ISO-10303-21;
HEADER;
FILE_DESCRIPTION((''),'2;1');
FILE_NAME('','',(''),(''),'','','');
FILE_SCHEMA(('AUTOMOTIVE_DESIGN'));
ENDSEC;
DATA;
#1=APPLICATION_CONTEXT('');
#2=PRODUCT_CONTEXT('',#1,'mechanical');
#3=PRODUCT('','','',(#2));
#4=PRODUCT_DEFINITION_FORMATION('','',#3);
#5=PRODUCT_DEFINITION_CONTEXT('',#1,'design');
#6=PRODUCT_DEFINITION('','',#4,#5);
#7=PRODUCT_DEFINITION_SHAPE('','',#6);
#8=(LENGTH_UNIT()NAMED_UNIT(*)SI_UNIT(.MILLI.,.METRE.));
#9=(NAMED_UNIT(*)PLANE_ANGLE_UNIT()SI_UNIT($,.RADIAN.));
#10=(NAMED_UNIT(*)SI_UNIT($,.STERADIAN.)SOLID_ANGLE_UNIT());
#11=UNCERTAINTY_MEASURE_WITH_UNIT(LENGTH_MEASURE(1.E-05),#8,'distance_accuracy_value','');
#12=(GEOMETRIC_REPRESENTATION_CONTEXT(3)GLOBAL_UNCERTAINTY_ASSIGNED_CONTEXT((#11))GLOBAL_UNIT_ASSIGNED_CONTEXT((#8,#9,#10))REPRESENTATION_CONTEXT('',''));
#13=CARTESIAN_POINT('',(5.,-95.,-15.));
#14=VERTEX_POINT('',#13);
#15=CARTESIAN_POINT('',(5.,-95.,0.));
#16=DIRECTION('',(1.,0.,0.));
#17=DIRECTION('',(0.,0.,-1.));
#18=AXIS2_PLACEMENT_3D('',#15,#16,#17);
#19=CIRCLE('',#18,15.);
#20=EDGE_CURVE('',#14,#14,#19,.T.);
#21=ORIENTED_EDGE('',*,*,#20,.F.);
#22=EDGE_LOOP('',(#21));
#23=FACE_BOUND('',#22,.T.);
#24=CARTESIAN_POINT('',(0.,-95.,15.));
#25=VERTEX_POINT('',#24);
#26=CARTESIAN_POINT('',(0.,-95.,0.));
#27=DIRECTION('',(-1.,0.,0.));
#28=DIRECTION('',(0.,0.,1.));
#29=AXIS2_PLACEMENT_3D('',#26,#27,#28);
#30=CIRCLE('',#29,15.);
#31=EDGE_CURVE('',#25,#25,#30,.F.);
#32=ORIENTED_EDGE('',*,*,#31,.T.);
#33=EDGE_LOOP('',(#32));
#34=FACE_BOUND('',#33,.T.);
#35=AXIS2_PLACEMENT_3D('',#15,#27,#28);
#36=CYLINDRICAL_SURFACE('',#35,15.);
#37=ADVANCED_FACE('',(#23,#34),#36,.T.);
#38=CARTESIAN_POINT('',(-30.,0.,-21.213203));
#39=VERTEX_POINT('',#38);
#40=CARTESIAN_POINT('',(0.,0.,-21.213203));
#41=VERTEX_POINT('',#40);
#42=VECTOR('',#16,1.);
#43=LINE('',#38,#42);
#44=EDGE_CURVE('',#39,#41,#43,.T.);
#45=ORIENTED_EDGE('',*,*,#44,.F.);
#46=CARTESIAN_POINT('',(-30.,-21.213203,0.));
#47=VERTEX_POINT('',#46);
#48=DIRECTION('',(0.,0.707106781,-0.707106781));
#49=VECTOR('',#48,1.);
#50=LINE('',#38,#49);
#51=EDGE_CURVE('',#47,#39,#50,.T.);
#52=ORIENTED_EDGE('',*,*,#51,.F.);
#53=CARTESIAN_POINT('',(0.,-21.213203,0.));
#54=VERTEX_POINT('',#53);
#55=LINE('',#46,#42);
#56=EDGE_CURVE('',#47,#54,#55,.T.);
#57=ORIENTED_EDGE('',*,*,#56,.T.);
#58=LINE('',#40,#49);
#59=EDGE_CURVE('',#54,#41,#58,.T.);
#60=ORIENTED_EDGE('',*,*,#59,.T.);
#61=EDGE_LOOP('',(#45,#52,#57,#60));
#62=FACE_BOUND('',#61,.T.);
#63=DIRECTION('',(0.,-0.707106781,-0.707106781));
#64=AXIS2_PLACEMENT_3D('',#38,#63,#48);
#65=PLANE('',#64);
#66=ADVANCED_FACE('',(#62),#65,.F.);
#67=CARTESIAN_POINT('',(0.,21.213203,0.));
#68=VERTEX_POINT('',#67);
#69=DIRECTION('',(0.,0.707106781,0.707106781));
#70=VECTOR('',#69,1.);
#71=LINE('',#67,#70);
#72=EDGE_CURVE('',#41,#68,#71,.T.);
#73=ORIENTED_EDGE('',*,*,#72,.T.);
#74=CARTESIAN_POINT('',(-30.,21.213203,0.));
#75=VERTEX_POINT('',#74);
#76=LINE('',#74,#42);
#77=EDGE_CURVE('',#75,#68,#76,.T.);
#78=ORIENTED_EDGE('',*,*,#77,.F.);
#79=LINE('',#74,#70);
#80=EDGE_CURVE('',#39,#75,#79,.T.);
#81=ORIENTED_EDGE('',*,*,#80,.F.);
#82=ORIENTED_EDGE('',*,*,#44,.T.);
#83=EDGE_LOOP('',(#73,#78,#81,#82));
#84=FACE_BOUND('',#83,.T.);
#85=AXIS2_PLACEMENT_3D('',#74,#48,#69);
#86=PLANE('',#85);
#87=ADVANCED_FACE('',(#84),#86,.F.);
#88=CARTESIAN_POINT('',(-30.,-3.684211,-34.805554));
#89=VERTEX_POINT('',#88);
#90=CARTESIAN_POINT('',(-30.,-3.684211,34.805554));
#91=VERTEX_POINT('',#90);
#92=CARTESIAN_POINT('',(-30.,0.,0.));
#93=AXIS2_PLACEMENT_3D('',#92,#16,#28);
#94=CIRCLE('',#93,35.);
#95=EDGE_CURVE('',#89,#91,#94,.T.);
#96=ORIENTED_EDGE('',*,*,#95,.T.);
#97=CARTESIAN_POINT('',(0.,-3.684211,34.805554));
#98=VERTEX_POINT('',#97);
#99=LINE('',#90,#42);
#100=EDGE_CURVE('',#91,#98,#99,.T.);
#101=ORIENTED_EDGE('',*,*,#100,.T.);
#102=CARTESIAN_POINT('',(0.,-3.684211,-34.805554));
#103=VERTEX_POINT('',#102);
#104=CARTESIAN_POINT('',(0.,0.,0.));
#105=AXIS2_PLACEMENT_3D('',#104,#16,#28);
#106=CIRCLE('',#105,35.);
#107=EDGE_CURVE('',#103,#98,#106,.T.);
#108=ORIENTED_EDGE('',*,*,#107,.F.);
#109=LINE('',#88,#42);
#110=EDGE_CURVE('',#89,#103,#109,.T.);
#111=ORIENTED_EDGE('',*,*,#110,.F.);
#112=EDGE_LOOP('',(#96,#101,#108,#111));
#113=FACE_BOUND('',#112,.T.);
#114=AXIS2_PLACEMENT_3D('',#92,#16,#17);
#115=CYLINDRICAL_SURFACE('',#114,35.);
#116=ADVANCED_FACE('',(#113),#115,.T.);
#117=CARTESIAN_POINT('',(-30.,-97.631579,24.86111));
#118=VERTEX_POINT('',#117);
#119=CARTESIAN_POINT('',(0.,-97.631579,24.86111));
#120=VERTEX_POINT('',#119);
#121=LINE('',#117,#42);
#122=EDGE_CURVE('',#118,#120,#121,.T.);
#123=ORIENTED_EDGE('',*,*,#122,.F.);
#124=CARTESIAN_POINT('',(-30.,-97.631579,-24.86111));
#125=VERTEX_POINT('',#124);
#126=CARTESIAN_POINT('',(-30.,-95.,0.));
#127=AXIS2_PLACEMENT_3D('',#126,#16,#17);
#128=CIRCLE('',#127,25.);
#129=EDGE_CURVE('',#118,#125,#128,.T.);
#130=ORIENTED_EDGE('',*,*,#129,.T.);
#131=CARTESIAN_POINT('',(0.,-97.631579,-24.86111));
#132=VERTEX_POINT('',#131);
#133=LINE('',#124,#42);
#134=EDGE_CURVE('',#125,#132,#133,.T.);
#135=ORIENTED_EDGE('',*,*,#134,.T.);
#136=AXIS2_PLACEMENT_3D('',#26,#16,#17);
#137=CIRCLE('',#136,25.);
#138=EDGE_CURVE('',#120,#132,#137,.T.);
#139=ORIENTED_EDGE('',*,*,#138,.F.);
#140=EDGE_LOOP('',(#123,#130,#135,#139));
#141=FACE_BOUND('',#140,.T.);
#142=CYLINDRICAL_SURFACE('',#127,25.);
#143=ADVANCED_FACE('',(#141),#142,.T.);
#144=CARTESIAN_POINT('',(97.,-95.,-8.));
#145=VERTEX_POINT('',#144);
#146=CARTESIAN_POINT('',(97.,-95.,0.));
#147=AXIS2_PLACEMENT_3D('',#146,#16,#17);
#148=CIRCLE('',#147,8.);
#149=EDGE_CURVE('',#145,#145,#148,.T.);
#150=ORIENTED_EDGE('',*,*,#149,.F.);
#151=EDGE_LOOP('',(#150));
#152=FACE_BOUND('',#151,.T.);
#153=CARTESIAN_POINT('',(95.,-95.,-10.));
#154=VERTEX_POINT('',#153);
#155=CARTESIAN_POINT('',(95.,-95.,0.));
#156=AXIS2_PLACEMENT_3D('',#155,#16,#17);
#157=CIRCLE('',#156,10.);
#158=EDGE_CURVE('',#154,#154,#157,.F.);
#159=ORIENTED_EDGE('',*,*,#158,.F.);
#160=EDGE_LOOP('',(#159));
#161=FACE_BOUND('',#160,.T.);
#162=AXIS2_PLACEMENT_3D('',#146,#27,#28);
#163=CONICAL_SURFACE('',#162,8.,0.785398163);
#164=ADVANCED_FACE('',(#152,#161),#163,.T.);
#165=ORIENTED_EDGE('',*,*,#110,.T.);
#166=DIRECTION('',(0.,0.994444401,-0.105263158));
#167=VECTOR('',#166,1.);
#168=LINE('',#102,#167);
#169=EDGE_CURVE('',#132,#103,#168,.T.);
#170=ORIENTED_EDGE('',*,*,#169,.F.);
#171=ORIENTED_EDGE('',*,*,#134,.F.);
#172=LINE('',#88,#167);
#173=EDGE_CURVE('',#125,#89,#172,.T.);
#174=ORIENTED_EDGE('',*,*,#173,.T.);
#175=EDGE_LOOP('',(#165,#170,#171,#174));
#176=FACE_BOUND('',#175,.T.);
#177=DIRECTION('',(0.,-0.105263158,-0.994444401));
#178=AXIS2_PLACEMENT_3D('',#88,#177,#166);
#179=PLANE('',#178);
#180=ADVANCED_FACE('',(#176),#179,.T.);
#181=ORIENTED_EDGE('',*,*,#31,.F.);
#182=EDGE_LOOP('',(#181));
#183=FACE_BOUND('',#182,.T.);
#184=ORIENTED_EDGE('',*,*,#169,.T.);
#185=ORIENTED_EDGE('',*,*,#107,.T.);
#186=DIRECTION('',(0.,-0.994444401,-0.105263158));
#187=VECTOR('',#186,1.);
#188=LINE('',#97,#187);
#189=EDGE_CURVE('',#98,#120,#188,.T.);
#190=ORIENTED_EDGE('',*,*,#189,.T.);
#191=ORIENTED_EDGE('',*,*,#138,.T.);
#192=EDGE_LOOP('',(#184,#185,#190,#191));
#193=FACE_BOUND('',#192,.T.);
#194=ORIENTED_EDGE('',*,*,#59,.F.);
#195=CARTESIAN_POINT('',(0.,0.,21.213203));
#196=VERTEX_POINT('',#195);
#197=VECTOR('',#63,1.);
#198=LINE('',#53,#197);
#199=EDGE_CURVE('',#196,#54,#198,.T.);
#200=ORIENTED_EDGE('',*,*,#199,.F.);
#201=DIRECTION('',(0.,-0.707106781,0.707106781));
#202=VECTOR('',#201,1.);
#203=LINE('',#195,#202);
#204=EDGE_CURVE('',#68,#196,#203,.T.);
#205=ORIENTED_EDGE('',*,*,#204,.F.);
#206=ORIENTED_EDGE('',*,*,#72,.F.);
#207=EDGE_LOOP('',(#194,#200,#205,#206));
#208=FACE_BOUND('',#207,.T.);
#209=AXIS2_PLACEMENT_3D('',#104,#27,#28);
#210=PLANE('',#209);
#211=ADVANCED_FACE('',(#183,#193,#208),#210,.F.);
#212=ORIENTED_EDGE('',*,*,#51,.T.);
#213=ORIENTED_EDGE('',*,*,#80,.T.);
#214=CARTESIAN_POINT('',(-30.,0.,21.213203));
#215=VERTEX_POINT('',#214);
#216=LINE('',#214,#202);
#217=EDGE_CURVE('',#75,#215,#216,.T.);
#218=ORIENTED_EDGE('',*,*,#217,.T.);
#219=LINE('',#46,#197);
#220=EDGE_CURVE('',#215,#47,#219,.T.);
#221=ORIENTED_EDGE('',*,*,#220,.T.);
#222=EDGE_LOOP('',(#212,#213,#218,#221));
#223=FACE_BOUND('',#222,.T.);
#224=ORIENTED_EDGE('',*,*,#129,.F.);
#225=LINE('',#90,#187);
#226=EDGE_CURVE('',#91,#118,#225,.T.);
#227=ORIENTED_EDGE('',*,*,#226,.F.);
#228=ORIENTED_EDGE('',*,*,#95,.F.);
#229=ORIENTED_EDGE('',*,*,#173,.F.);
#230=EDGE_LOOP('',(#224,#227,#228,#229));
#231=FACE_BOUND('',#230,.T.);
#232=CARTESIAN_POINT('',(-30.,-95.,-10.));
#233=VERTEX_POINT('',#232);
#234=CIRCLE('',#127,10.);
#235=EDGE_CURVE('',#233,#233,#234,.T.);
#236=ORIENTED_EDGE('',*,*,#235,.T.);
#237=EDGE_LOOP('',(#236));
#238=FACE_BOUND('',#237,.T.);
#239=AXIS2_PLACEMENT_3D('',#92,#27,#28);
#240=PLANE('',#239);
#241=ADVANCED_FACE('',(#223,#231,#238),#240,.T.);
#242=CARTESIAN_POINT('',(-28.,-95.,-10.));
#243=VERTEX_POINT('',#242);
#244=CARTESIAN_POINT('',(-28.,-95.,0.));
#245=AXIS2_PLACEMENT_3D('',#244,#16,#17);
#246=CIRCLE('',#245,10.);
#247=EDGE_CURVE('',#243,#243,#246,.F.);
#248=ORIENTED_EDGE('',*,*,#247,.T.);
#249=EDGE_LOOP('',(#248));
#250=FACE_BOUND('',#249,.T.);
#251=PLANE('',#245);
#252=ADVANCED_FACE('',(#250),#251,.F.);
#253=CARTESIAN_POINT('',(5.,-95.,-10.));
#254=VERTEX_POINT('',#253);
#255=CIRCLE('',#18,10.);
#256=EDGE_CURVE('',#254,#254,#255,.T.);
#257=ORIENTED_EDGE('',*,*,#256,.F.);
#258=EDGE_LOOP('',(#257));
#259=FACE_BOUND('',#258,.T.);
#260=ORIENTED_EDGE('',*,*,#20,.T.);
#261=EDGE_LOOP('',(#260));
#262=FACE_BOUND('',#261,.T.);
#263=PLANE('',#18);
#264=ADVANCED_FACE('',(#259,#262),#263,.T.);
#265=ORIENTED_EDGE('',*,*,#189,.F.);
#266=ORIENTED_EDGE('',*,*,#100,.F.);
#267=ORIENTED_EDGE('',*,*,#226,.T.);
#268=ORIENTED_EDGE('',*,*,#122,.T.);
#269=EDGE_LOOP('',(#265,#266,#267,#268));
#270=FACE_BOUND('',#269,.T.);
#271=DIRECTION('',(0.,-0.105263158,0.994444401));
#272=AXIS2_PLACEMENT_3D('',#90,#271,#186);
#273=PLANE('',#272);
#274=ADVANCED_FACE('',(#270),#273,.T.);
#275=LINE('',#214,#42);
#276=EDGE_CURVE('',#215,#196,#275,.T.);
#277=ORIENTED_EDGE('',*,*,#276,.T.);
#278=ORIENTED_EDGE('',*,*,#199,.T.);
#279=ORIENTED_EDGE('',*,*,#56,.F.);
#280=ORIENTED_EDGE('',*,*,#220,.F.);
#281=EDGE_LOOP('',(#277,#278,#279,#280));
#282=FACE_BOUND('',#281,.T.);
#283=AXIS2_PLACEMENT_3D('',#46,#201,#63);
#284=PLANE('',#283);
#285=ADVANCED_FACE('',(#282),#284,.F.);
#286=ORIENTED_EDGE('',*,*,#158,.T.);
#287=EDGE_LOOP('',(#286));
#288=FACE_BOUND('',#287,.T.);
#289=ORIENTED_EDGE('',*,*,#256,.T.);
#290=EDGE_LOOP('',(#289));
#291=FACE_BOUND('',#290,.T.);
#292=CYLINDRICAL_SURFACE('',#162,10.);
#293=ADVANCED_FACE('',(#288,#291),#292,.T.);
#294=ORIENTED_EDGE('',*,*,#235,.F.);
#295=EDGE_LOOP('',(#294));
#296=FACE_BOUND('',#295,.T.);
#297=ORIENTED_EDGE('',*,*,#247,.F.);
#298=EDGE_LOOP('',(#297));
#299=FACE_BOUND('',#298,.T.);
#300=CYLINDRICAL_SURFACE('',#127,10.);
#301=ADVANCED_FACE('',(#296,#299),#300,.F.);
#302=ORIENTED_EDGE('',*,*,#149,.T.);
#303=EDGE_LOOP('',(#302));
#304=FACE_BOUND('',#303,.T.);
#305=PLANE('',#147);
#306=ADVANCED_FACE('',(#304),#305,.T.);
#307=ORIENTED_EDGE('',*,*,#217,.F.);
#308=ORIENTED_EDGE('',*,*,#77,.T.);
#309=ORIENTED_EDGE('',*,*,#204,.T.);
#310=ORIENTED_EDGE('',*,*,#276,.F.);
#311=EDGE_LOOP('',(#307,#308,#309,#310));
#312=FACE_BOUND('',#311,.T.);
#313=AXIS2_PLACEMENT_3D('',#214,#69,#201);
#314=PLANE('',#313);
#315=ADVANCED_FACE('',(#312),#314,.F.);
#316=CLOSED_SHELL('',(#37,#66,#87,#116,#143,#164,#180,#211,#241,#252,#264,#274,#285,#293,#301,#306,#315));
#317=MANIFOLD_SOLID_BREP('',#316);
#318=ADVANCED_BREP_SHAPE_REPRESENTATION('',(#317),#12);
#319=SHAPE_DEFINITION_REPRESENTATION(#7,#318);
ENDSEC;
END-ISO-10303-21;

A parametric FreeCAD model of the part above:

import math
import FreeCAD as App
import Part
import Sketcher
from FreeCAD import Vector
Q = App.Units.Quantity


def edges_at(feature, points):
    """Names of the edges that pass closest to the given points."""
    edges = feature.Shape.Edges
    near = lambda p: min(range(len(edges)), key=lambda i: edges[i].distToShape(Part.Vertex(*p))[0])
    return sorted({f"Edge{near(p) + 1}" for p in points})

doc = App.newDocument("Part")
body = doc.addObject("PartDesign::Body", "Body")

# Sketch on YZ plane
sketch1 = body.newObject("Sketcher::SketchObject", "Sketch")
sketch1.AttachmentSupport = (doc.getObject("YZ_Plane"), [""])
sketch1.MapMode = "FlatFace"
sketch1.addGeometry([
    Part.LineSegment(Vector(-4, 35, 0), Vector(-98, 25, 0)),  # 0
    Part.ArcOfCircle(Part.Circle(Vector(-95, 0, 0), Vector(0, 0, 1), 25), math.radians(96), math.radians(264)),  # 1
    Part.LineSegment(Vector(-98, -25, 0), Vector(-4, -35, 0)),  # 2
    Part.ArcOfCircle(Part.Circle(Vector(0, 0, 0), Vector(0, 0, 1), 35), math.radians(-96), math.radians(96)),  # 3
    Part.Circle(Vector(-95, 0, 0), Vector(0, 0, 1), 10),  # 4
    Part.LineSegment(Vector(0, 21, 0), Vector(21, 0, 0)),  # 5
    Part.LineSegment(Vector(21, 0, 0), Vector(0, -21, 0)),  # 6
    Part.LineSegment(Vector(0, -21, 0), Vector(-21, 0, 0)),  # 7
    Part.LineSegment(Vector(-21, 0, 0), Vector(0, 21, 0)),  # 8
], False)
sketch1.addConstraint([
    Sketcher.Constraint("Tangent", 0, 2, 1, 1),
    Sketcher.Constraint("Tangent", 1, 2, 2, 1),
    Sketcher.Constraint("Tangent", 2, 2, 3, 1),
    Sketcher.Constraint("Tangent", 3, 2, 0, 1),
    Sketcher.Constraint("Coincident", 5, 2, 6, 1),
    Sketcher.Constraint("Coincident", 6, 2, 7, 1),
    Sketcher.Constraint("Coincident", 7, 2, 8, 1),
    Sketcher.Constraint("Coincident", 8, 2, 5, 1),
    Sketcher.Constraint("Coincident", 3, 3, -1, 1),
    Sketcher.Constraint("Coincident", 4, 3, 1, 3),
    Sketcher.Constraint("Symmetric", 5, 2, 7, 2, -1, 1),
    Sketcher.Constraint("Symmetric", 6, 2, 8, 2, -1, 1),
    Sketcher.Constraint("PointOnObject", 1, 3, -1),
    Sketcher.Constraint("PointOnObject", 5, 2, -1),
    Sketcher.Constraint("PointOnObject", 6, 2, -2),
    Sketcher.Constraint("Perpendicular", 5, 6),
    Sketcher.Constraint("Diameter", 4, Q("20 mm")),
    Sketcher.Constraint("Radius", 1, Q("25 mm")),
    Sketcher.Constraint("Radius", 3, Q("35 mm")),
    Sketcher.Constraint("Distance", 5, Q("30 mm")),
    Sketcher.Constraint("DistanceX", 1, 3, -1, 1, Q("95 mm")),
])
pad1 = body.newObject("PartDesign::Pad", "Pad")
pad1.Profile = sketch1
pad1.Length = 30
pad1.Reversed = True

# Sketch on YZ plane
sketch2 = body.newObject("Sketcher::SketchObject", "Sketch001")
sketch2.AttachmentSupport = (doc.getObject("YZ_Plane"), [""])
sketch2.MapMode = "FlatFace"
sketch2.addGeometry(Part.Circle(Vector(-95, 0, 0), Vector(0, 0, 1), 10), False)
sketch2.addConstraint([
    Sketcher.Constraint("PointOnObject", 0, 3, -1),
    Sketcher.Constraint("Diameter", 0, Q("20 mm")),
    Sketcher.Constraint("DistanceX", 0, 3, -1, 1, Q("95 mm")),
])
pad2 = body.newObject("PartDesign::Pad", "Pad001")
pad2.Profile = sketch2
pad2.Length = 28
pad2.Reversed = True

# Sketch on YZ plane
sketch3 = body.newObject("Sketcher::SketchObject", "Sketch002")
sketch3.AttachmentSupport = (doc.getObject("YZ_Plane"), [""])
sketch3.MapMode = "FlatFace"
sketch3.addGeometry(Part.Circle(Vector(-95, 0, 0), Vector(0, 0, 1), 15), False)
sketch3.addConstraint([
    Sketcher.Constraint("PointOnObject", 0, 3, -1),
    Sketcher.Constraint("Diameter", 0, Q("30 mm")),
    Sketcher.Constraint("DistanceX", 0, 3, -1, 1, Q("95 mm")),
])
pad3 = body.newObject("PartDesign::Pad", "Pad002")
pad3.Profile = sketch3
pad3.Length = 5

# Sketch on YZ plane
sketch4 = body.newObject("Sketcher::SketchObject", "Sketch003")
sketch4.AttachmentSupport = (doc.getObject("YZ_Plane"), [""])
sketch4.MapMode = "FlatFace"
sketch4.AttachmentOffset = App.Placement(Vector(0, 0, 97), App.Rotation())
sketch4.addGeometry(Part.Circle(Vector(-95, 0, 0), Vector(0, 0, 1), 10), False)
sketch4.addConstraint([
    Sketcher.Constraint("PointOnObject", 0, 3, -1),
    Sketcher.Constraint("Diameter", 0, Q("20 mm")),
    Sketcher.Constraint("DistanceX", 0, 3, -1, 1, Q("95 mm")),
])
pad4 = body.newObject("PartDesign::Pad", "Pad003")
pad4.Profile = sketch4
pad4.Length = 92
pad4.Reversed = True
doc.recompute()

chamfer = body.newObject("PartDesign::Chamfer", "Chamfer")
chamfer.Base = (pad4, edges_at(pad4, [(97, -95, 10)]))
chamfer.Size = 2

doc.recompute()
